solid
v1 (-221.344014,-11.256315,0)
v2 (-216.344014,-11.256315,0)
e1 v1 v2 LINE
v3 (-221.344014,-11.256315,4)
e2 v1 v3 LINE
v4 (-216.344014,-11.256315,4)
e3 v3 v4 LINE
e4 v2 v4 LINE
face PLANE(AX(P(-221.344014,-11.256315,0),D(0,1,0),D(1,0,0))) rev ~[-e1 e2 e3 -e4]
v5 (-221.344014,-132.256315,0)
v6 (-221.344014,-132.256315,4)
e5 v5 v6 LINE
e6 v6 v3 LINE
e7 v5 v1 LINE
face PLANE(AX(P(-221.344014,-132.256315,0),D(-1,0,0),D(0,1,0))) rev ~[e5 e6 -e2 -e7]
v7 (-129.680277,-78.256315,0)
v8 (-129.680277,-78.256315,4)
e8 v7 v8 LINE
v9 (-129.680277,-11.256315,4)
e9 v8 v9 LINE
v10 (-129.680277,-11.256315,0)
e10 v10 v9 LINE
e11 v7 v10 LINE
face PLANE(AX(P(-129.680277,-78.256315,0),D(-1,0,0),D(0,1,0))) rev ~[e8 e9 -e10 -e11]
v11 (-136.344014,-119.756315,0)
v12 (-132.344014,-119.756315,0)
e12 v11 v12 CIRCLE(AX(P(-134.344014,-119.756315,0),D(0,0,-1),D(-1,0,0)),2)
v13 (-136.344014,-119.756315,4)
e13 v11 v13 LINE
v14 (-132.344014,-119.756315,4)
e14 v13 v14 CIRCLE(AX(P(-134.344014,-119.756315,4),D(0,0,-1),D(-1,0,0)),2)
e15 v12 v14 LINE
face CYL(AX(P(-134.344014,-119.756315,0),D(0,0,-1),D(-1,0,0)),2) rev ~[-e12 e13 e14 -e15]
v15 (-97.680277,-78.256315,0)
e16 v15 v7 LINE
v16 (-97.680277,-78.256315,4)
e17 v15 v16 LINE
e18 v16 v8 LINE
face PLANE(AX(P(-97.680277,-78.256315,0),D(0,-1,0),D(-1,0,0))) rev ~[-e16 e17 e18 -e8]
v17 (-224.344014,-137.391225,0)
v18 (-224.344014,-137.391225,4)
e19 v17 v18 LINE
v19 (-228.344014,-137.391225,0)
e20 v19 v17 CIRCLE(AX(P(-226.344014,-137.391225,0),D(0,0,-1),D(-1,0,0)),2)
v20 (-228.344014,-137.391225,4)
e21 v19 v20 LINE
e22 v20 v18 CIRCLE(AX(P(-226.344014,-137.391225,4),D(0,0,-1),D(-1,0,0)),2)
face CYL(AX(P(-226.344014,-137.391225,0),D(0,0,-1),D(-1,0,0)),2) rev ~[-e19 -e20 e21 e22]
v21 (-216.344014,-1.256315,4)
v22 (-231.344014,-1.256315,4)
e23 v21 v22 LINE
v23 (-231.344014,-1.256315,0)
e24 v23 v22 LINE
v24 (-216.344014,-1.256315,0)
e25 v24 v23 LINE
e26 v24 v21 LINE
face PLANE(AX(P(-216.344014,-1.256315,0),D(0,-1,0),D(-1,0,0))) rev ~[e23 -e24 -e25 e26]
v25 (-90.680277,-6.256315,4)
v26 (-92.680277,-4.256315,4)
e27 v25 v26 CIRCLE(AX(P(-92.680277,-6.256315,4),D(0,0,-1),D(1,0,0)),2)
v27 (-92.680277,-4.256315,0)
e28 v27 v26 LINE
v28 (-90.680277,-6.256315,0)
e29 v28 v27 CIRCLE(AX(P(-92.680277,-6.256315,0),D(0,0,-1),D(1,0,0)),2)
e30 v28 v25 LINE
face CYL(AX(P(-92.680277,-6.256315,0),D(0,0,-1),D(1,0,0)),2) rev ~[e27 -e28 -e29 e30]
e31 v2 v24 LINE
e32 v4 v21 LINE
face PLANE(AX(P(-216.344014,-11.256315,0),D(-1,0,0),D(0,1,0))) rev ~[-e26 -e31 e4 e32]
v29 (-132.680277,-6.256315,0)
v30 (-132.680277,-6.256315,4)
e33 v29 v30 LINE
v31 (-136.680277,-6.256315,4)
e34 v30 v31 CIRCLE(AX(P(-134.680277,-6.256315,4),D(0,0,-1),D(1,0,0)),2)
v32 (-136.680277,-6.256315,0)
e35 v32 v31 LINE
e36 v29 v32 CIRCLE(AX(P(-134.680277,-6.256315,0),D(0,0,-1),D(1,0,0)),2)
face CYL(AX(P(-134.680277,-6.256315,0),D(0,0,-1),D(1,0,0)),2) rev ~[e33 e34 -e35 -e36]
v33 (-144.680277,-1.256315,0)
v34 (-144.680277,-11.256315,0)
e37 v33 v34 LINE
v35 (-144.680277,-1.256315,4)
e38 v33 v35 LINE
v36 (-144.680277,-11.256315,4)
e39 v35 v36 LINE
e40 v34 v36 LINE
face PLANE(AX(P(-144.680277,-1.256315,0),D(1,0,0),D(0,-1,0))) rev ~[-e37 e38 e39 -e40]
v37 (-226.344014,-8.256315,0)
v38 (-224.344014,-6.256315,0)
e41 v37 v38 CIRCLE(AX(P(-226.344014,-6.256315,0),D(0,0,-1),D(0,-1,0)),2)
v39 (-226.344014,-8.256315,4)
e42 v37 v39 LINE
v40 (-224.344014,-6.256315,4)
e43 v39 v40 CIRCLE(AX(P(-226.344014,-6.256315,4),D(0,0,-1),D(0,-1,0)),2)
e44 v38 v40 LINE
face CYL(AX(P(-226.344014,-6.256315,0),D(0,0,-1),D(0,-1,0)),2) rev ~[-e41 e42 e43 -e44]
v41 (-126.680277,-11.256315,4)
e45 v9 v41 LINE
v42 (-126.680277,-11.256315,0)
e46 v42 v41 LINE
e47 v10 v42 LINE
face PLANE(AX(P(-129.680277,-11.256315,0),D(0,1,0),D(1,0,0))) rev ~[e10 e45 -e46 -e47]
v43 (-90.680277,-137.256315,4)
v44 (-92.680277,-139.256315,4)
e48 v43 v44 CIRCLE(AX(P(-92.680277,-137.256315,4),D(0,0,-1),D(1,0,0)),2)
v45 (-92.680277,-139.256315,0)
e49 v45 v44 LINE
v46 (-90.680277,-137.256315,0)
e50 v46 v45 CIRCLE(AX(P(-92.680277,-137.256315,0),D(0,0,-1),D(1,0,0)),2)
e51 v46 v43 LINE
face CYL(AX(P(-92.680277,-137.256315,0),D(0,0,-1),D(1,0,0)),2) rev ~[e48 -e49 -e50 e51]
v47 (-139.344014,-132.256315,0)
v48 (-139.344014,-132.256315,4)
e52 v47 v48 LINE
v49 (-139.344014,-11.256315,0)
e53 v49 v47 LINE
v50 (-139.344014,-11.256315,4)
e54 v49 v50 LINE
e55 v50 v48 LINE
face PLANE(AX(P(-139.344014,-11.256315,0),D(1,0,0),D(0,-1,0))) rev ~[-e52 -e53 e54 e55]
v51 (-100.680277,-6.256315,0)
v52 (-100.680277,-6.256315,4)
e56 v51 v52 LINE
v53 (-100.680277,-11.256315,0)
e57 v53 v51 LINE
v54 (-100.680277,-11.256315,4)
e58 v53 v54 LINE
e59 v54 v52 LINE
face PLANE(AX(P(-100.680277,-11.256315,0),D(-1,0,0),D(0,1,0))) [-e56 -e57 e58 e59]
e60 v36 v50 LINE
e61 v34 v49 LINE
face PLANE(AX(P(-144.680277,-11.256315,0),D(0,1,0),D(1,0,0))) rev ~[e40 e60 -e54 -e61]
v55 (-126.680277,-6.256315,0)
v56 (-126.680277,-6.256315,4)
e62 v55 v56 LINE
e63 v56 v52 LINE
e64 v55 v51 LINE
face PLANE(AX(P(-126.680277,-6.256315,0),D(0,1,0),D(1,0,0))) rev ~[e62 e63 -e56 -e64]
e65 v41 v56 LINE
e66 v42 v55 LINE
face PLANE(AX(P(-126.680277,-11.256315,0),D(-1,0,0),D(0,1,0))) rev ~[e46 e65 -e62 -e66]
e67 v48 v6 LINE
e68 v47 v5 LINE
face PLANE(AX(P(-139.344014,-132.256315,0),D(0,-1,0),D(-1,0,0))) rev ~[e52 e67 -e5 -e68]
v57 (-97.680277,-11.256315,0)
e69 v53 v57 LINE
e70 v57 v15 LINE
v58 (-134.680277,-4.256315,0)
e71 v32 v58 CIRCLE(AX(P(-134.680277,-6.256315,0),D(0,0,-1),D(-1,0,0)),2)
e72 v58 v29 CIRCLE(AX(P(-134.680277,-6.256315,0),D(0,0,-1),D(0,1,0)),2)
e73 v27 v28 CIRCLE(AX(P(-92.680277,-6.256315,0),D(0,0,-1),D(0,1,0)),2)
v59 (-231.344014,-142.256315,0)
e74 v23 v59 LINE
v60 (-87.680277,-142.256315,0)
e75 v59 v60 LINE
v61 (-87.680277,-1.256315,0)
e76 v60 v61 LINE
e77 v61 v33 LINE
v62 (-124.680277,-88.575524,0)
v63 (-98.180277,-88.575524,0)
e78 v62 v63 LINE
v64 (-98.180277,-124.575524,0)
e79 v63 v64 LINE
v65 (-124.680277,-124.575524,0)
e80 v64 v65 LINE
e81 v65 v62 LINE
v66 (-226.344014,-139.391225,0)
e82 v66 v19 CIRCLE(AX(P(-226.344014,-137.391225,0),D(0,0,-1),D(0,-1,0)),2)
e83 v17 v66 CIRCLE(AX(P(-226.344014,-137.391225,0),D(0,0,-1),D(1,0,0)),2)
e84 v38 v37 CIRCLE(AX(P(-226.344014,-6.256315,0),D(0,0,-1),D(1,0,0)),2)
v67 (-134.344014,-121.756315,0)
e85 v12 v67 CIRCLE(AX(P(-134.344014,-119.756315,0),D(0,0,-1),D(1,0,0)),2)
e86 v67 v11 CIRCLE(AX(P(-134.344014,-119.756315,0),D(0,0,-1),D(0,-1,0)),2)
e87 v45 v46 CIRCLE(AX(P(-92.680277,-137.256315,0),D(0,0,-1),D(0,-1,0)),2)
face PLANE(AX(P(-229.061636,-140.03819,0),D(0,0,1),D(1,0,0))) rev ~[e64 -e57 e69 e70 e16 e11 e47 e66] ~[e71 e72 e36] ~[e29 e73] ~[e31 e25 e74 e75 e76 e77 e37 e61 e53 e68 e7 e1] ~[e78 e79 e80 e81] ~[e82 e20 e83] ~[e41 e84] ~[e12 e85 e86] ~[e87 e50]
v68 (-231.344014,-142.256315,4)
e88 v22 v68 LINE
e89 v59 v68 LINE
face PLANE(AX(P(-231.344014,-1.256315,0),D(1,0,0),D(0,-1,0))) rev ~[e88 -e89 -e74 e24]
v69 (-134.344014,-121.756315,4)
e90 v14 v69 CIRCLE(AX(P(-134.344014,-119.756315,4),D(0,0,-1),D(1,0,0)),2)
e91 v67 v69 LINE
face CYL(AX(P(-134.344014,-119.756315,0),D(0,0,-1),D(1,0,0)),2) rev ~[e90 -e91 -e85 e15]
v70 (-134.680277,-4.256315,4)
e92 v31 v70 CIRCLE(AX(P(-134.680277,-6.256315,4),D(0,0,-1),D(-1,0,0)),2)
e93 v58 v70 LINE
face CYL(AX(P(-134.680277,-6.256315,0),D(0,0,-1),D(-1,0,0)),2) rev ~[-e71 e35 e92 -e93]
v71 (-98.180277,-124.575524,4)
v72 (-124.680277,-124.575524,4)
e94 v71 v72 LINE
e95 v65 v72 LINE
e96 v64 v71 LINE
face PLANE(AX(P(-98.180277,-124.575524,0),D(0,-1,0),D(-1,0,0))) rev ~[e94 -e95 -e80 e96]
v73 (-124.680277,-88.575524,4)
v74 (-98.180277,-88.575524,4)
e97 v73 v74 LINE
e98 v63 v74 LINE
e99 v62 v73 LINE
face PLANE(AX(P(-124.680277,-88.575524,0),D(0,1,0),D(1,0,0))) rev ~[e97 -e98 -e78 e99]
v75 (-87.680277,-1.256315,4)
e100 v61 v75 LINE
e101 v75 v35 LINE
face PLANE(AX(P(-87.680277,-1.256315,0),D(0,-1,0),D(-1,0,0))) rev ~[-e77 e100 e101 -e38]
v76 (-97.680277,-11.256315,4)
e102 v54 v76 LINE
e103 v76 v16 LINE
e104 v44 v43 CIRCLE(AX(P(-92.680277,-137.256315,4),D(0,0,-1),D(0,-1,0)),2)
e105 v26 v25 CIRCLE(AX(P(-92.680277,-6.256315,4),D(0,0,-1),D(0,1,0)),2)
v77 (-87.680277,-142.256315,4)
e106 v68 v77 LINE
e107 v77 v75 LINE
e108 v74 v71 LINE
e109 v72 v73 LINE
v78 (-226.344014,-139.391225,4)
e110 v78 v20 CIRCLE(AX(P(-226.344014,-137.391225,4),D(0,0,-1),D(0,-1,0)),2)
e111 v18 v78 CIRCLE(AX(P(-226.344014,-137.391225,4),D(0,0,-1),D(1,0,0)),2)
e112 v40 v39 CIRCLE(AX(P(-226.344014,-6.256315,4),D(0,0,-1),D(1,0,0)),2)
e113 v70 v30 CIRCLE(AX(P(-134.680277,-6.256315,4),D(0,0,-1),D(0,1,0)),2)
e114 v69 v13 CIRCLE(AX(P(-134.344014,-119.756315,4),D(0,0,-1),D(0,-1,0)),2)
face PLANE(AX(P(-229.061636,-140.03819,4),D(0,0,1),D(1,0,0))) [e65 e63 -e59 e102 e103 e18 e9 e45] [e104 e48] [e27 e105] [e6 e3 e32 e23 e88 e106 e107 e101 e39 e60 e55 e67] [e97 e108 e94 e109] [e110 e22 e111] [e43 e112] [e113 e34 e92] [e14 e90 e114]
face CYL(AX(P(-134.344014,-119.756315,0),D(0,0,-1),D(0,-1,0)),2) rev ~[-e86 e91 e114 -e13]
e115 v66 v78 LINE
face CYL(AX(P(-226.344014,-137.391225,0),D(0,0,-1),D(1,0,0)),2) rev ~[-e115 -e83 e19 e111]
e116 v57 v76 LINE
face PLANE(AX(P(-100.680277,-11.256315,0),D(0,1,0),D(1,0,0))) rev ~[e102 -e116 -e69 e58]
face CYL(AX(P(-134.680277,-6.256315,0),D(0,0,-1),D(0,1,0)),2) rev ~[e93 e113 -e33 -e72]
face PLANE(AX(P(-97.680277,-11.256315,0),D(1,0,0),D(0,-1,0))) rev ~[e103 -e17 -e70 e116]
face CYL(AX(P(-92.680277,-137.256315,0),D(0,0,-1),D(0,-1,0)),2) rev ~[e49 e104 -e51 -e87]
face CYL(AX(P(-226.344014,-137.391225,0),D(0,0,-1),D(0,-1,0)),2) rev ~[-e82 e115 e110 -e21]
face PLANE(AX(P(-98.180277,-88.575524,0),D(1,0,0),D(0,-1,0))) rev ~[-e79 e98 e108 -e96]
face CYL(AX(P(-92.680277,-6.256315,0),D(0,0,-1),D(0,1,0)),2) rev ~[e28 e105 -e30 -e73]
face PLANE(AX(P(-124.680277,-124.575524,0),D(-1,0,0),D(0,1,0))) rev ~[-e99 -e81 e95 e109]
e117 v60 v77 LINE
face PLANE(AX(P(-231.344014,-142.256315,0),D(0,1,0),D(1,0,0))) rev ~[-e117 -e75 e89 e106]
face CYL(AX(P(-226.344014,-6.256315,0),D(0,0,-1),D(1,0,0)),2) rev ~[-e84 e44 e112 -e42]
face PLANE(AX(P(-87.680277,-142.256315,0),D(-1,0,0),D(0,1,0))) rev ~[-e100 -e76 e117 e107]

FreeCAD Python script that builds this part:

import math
import FreeCAD as App
import Part
import Sketcher

V = App.Vector
Q = App.Units.Quantity

doc = App.newDocument("Part")
body = doc.addObject("PartDesign::Body", "Body")

# Sketch on XY plane
sketch1 = body.newObject("Sketcher::SketchObject", "Sketch")
sketch1.AttachmentSupport = (doc.getObject("XY_Plane"), [""])
sketch1.MapMode = "FlatFace"
sketch1.addGeometry(Part.LineSegment(V(-221.3, -132.3, 0), V(-221.3, -11.3, 0)), False)
sketch1.addGeometry(Part.LineSegment(V(-221.3, -11.3, 0), V(-216.3, -11.3, 0)), False)
sketch1.addGeometry(Part.LineSegment(V(-216.3, -11.3, 0), V(-216.3, -1.3, 0)), False)
sketch1.addGeometry(Part.LineSegment(V(-216.3, -1.3, 0), V(-231.3, -1.3, 0)), False)
sketch1.addGeometry(Part.LineSegment(V(-231.3, -1.3, 0), V(-231.3, -142.3, 0)), False)
sketch1.addGeometry(Part.LineSegment(V(-231.3, -142.3, 0), V(-87.7, -142.3, 0)), False)
sketch1.addGeometry(Part.LineSegment(V(-87.7, -142.3, 0), V(-87.7, -1.3, 0)), False)
sketch1.addGeometry(Part.LineSegment(V(-87.7, -1.3, 0), V(-144.7, -1.3, 0)), False)
sketch1.addGeometry(Part.LineSegment(V(-144.7, -1.3, 0), V(-144.7, -11.3, 0)), False)
sketch1.addGeometry(Part.LineSegment(V(-144.7, -11.3, 0), V(-139.3, -11.3, 0)), False)
sketch1.addGeometry(Part.LineSegment(V(-139.3, -11.3, 0), V(-139.3, -132.3, 0)), False)
sketch1.addGeometry(Part.LineSegment(V(-139.3, -132.3, 0), V(-221.3, -132.3, 0)), False)
sketch1.addGeometry(Part.ArcOfCircle(Part.Circle(V(-226.3, -137.4, 0), V(0, 0, 1), 2), math.radians(180), math.radians(270)), False)
sketch1.addGeometry(Part.ArcOfCircle(Part.Circle(V(-226.3, -137.4, 0), V(0, 0, 1), 2), math.radians(0), math.radians(180)), False)
sketch1.addGeometry(Part.ArcOfCircle(Part.Circle(V(-226.3, -137.4, 0), V(0, 0, 1), 2), math.radians(-90), math.radians(0)), False)
sketch1.addGeometry(Part.ArcOfCircle(Part.Circle(V(-134.3, -119.8, 0), V(0, 0, 1), 2), math.radians(180), math.radians(270)), False)
sketch1.addGeometry(Part.ArcOfCircle(Part.Circle(V(-134.3, -119.8, 0), V(0, 0, 1), 2), math.radians(0), math.radians(180)), False)
sketch1.addGeometry(Part.ArcOfCircle(Part.Circle(V(-134.3, -119.8, 0), V(0, 0, 1), 2), math.radians(-90), math.radians(0)), False)
sketch1.addGeometry(Part.ArcOfCircle(Part.Circle(V(-92.7, -137.3, 0), V(0, 0, 1), 2), math.radians(0), math.radians(270)), False)
sketch1.addGeometry(Part.ArcOfCircle(Part.Circle(V(-92.7, -137.3, 0), V(0, 0, 1), 2), math.radians(-90), math.radians(0)), False)
sketch1.addGeometry(Part.LineSegment(V(-98.2, -88.6, 0), V(-98.2, -124.6, 0)), False)
sketch1.addGeometry(Part.LineSegment(V(-98.2, -124.6, 0), V(-124.7, -124.6, 0)), False)
sketch1.addGeometry(Part.LineSegment(V(-124.7, -124.6, 0), V(-124.7, -88.6, 0)), False)
sketch1.addGeometry(Part.LineSegment(V(-124.7, -88.6, 0), V(-98.2, -88.6, 0)), False)
sketch1.addGeometry(Part.ArcOfCircle(Part.Circle(V(-226.3, -6.3, 0), V(0, 0, 1), 2), math.radians(0), math.radians(270)), False)
sketch1.addGeometry(Part.ArcOfCircle(Part.Circle(V(-226.3, -6.3, 0), V(0, 0, 1), 2), math.radians(-90), math.radians(0)), False)
sketch1.addGeometry(Part.LineSegment(V(-97.7, -78.3, 0), V(-129.7, -78.3, 0)), False)
sketch1.addGeometry(Part.LineSegment(V(-129.7, -78.3, 0), V(-129.7, -11.3, 0)), False)
sketch1.addGeometry(Part.LineSegment(V(-129.7, -11.3, 0), V(-126.7, -11.3, 0)), False)
sketch1.addGeometry(Part.LineSegment(V(-126.7, -11.3, 0), V(-126.7, -6.3, 0)), False)
sketch1.addGeometry(Part.LineSegment(V(-126.7, -6.3, 0), V(-100.7, -6.3, 0)), False)
sketch1.addGeometry(Part.LineSegment(V(-100.7, -6.3, 0), V(-100.7, -11.3, 0)), False)
sketch1.addGeometry(Part.LineSegment(V(-100.7, -11.3, 0), V(-97.7, -11.3, 0)), False)
sketch1.addGeometry(Part.LineSegment(V(-97.7, -11.3, 0), V(-97.7, -78.3, 0)), False)
sketch1.addGeometry(Part.ArcOfCircle(Part.Circle(V(-134.7, -6.3, 0), V(0, 0, 1), 2), math.radians(180), math.radians(360)), False)
sketch1.addGeometry(Part.ArcOfCircle(Part.Circle(V(-134.7, -6.3, 0), V(0, 0, 1), 2), math.radians(90), math.radians(180)), False)
sketch1.addGeometry(Part.ArcOfCircle(Part.Circle(V(-134.7, -6.3, 0), V(0, 0, 1), 2), math.radians(0), math.radians(90)), False)
sketch1.addGeometry(Part.ArcOfCircle(Part.Circle(V(-92.7, -6.3, 0), V(0, 0, 1), 2), math.radians(90), math.radians(360)), False)
sketch1.addGeometry(Part.ArcOfCircle(Part.Circle(V(-92.7, -6.3, 0), V(0, 0, 1), 2), math.radians(0), math.radians(90)), False)
sketch1.addConstraint(Sketcher.Constraint("Coincident", 0, 2, 1, 1))
sketch1.addConstraint(Sketcher.Constraint("Coincident", 1, 2, 2, 1))
sketch1.addConstraint(Sketcher.Constraint("Coincident", 2, 2, 3, 1))
sketch1.addConstraint(Sketcher.Constraint("Coincident", 3, 2, 4, 1))
sketch1.addConstraint(Sketcher.Constraint("Coincident", 4, 2, 5, 1))
sketch1.addConstraint(Sketcher.Constraint("Coincident", 5, 2, 6, 1))
sketch1.addConstraint(Sketcher.Constraint("Coincident", 6, 2, 7, 1))
sketch1.addConstraint(Sketcher.Constraint("Coincident", 7, 2, 8, 1))
sketch1.addConstraint(Sketcher.Constraint("Coincident", 8, 2, 9, 1))
sketch1.addConstraint(Sketcher.Constraint("Coincident", 9, 2, 10, 1))
sketch1.addConstraint(Sketcher.Constraint("Coincident", 10, 2, 11, 1))
sketch1.addConstraint(Sketcher.Constraint("Coincident", 11, 2, 0, 1))
sketch1.addConstraint(Sketcher.Constraint("Tangent", 12, 1, 13, 2))
sketch1.addConstraint(Sketcher.Constraint("Tangent", 13, 1, 14, 2))
sketch1.addConstraint(Sketcher.Constraint("Tangent", 14, 1, 12, 2))
sketch1.addConstraint(Sketcher.Constraint("Tangent", 15, 1, 16, 2))
sketch1.addConstraint(Sketcher.Constraint("Tangent", 16, 1, 17, 2))
sketch1.addConstraint(Sketcher.Constraint("Tangent", 17, 1, 15, 2))
sketch1.addConstraint(Sketcher.Constraint("Tangent", 18, 1, 19, 2))
sketch1.addConstraint(Sketcher.Constraint("Coincident", 19, 1, 18, 2))
sketch1.addConstraint(Sketcher.Constraint("Coincident", 20, 2, 21, 1))
sketch1.addConstraint(Sketcher.Constraint("Coincident", 21, 2, 22, 1))
sketch1.addConstraint(Sketcher.Constraint("Coincident", 22, 2, 23, 1))
sketch1.addConstraint(Sketcher.Constraint("Coincident", 23, 2, 20, 1))
sketch1.addConstraint(Sketcher.Constraint("Tangent", 24, 1, 25, 2))
sketch1.addConstraint(Sketcher.Constraint("Coincident", 25, 1, 24, 2))
sketch1.addConstraint(Sketcher.Constraint("Coincident", 26, 2, 27, 1))
sketch1.addConstraint(Sketcher.Constraint("Coincident", 27, 2, 28, 1))
sketch1.addConstraint(Sketcher.Constraint("Coincident", 28, 2, 29, 1))
sketch1.addConstraint(Sketcher.Constraint("Coincident", 29, 2, 30, 1))
sketch1.addConstraint(Sketcher.Constraint("Coincident", 30, 2, 31, 1))
sketch1.addConstraint(Sketcher.Constraint("Coincident", 31, 2, 32, 1))
sketch1.addConstraint(Sketcher.Constraint("Coincident", 32, 2, 33, 1))
sketch1.addConstraint(Sketcher.Constraint("Coincident", 33, 2, 26, 1))
sketch1.addConstraint(Sketcher.Constraint("Tangent", 34, 1, 35, 2))
sketch1.addConstraint(Sketcher.Constraint("Tangent", 35, 1, 36, 2))
sketch1.addConstraint(Sketcher.Constraint("Tangent", 36, 1, 34, 2))
sketch1.addConstraint(Sketcher.Constraint("Tangent", 37, 1, 38, 2))
sketch1.addConstraint(Sketcher.Constraint("Coincident", 38, 1, 37, 2))
sketch1.addConstraint(Sketcher.Constraint("Vertical", 0))
sketch1.addConstraint(Sketcher.Constraint("Horizontal", 1))
sketch1.addConstraint(Sketcher.Constraint("Vertical", 2))
sketch1.addConstraint(Sketcher.Constraint("Horizontal", 3))
sketch1.addConstraint(Sketcher.Constraint("Vertical", 4))
sketch1.addConstraint(Sketcher.Constraint("Horizontal", 5))
sketch1.addConstraint(Sketcher.Constraint("Vertical", 6))
sketch1.addConstraint(Sketcher.Constraint("Horizontal", 7))
sketch1.addConstraint(Sketcher.Constraint("Vertical", 8))
sketch1.addConstraint(Sketcher.Constraint("Horizontal", 9))
sketch1.addConstraint(Sketcher.Constraint("Vertical", 10))
sketch1.addConstraint(Sketcher.Constraint("Horizontal", 11))
sketch1.addConstraint(Sketcher.Constraint("Vertical", 20))
sketch1.addConstraint(Sketcher.Constraint("Horizontal", 21))
sketch1.addConstraint(Sketcher.Constraint("Vertical", 22))
sketch1.addConstraint(Sketcher.Constraint("Horizontal", 23))
sketch1.addConstraint(Sketcher.Constraint("Horizontal", 26))
sketch1.addConstraint(Sketcher.Constraint("Vertical", 27))
sketch1.addConstraint(Sketcher.Constraint("Horizontal", 28))
sketch1.addConstraint(Sketcher.Constraint("Vertical", 29))
sketch1.addConstraint(Sketcher.Constraint("Horizontal", 30))
sketch1.addConstraint(Sketcher.Constraint("Vertical", 31))
sketch1.addConstraint(Sketcher.Constraint("Horizontal", 32))
sketch1.addConstraint(Sketcher.Constraint("Vertical", 33))
sketch1.addConstraint(Sketcher.Constraint("Equal", 14, 15))
sketch1.addConstraint(Sketcher.Constraint("Equal", 17, 18))
sketch1.addConstraint(Sketcher.Constraint("Equal", 19, 24))
sketch1.addConstraint(Sketcher.Constraint("Equal", 25, 34))
sketch1.addConstraint(Sketcher.Constraint("Equal", 36, 37))
sketch1.addConstraint(Sketcher.Constraint("Horizontal", 25, 3, 34, 3))
sketch1.addConstraint(Sketcher.Constraint("Horizontal", 36, 3, 37, 3))
sketch1.addConstraint(Sketcher.Constraint("Horizontal", 3, 2, 6, 2))
sketch1.addConstraint(Sketcher.Constraint("Horizontal", 1, 2, 8, 2))
sketch1.addConstraint(Sketcher.Constraint("Horizontal", 14, 3, 12, 1))
sketch1.addConstraint(Sketcher.Constraint("Horizontal", 12, 1, 13, 1))
sketch1.addConstraint(Sketcher.Constraint("Horizontal", 17, 3, 15, 1))
sketch1.addConstraint(Sketcher.Constraint("Horizontal", 15, 1, 16, 1))
sketch1.addConstraint(Sketcher.Constraint("Horizontal", 19, 3, 18, 1))
sketch1.addConstraint(Sketcher.Constraint("Horizontal", 38, 3, 24, 1))
sketch1.addConstraint(Sketcher.Constraint("Horizontal", 9, 2, 27, 2))
sketch1.addConstraint(Sketcher.Constraint("Horizontal", 24, 1, 29, 2))
sketch1.addConstraint(Sketcher.Constraint("Horizontal", 28, 2, 31, 2))
sketch1.addConstraint(Sketcher.Constraint("Horizontal", 30, 2, 34, 1))
sketch1.addConstraint(Sketcher.Constraint("Horizontal", 34, 1, 36, 1))
sketch1.addConstraint(Sketcher.Constraint("Horizontal", 36, 1, 38, 1))
sketch1.addConstraint(Sketcher.Constraint("Vertical", 14, 3, 24, 3))
sketch1.addConstraint(Sketcher.Constraint("Vertical", 19, 3, 37, 3))
sketch1.addConstraint(Sketcher.Constraint("Vertical", 25, 3, 14, 1))
sketch1.addConstraint(Sketcher.Constraint("Vertical", 16, 3, 17, 1))
sketch1.addConstraint(Sketcher.Constraint("Vertical", 38, 3, 19, 1))
sketch1.addConstraint(Sketcher.Constraint("Vertical", 14, 1, 25, 1))
sketch1.addConstraint(Sketcher.Constraint("Vertical", 36, 3, 35, 1))
sketch1.addConstraint(Sketcher.Constraint("Vertical", 19, 1, 37, 1))
sketch1.addConstraint(Sketcher.Constraint("Equal", 28, 32))
sketch1.addConstraint(Sketcher.Constraint("Equal", 1, 29))
sketch1.addConstraint(Sketcher.Constraint("Radius", 12, Q("2 mm")))
sketch1.addConstraint(Sketcher.Constraint("DistanceX", 1, 1, 1, 2, Q("5 mm")))
sketch1.addConstraint(Sketcher.Constraint("DistanceX", 3, 2, 3, 1, Q("15 mm")))
sketch1.addConstraint(Sketcher.Constraint("DistanceX", 7, 2, 7, 1, Q("57 mm")))
sketch1.addConstraint(Sketcher.Constraint("DistanceX", 11, 2, 11, 1, Q("82 mm")))
sketch1.addConstraint(Sketcher.Constraint("DistanceX", 26, 2, 26, 1, Q("32 mm")))
sketch1.addConstraint(Sketcher.Constraint("DistanceX", 28, 1, 28, 2, Q("3 mm")))
sketch1.addConstraint(Sketcher.Constraint("DistanceY", 0, 1, 0, 2, Q("121 mm")))
sketch1.addConstraint(Sketcher.Constraint("DistanceY", 2, 1, 2, 2, Q("10 mm")))
sketch1.addConstraint(Sketcher.Constraint("DistanceY", 4, 2, 4, 1, Q("141 mm")))
sketch1.addConstraint(Sketcher.Constraint("DistanceY", 20, 2, 20, 1, Q("36 mm")))
sketch1.addConstraint(Sketcher.Constraint("DistanceY", 27, 1, 27, 2, Q("67 mm")))
sketch1.addConstraint(Sketcher.Constraint("DistanceX", 21, 2, 21, 1, Q("26.5 mm")))
sketch1.addConstraint(Sketcher.Constraint("DistanceX", 12, 3, 15, 3, Q("92 mm")))
sketch1.addConstraint(Sketcher.Constraint("DistanceX", 34, 3, 37, 3, Q("42 mm")))
sketch1.addConstraint(Sketcher.Constraint("DistanceX", 24, 3, 0, 2, Q("5 mm")))
sketch1.addConstraint(Sketcher.Constraint("DistanceX", 18, 3, 5, 2, Q("5 mm")))
sketch1.addConstraint(Sketcher.Constraint("DistanceY", 5, 2, 18, 3, Q("5 mm")))
sketch1.addConstraint(Sketcher.Constraint("DistanceX", 26, 2, 22, 2, Q("5 mm")))
sketch1.addConstraint(Sketcher.Constraint("DistanceX", 34, 3, 27, 2, Q("5 mm")))
sketch1.addConstraint(Sketcher.Constraint("DistanceY", 18, 3, 15, 3, Q("17.5 mm")))
sketch1.addConstraint(Sketcher.Constraint("DistanceX", 5, 1, 5, 2, Q("143.663738 mm")))
sketch1.addConstraint(Sketcher.Constraint("DistanceY", 12, 3, 15, 3, Q("17.634909 mm")))
sketch1.addConstraint(Sketcher.Constraint("DistanceY", 18, 3, 20, 2, Q("12.680791 mm")))
sketch1.addConstraint(Sketcher.Constraint("DistanceX", 12, 3, -1, 1, Q("226.344014 mm")))
sketch1.addConstraint(Sketcher.Constraint("DistanceY", 12, 3, -1, 1, Q("137.391225 mm")))
pad1 = body.newObject("PartDesign::Pad", "Pad")
pad1.Profile = sketch1
pad1.Length = 4

doc.recompute()
